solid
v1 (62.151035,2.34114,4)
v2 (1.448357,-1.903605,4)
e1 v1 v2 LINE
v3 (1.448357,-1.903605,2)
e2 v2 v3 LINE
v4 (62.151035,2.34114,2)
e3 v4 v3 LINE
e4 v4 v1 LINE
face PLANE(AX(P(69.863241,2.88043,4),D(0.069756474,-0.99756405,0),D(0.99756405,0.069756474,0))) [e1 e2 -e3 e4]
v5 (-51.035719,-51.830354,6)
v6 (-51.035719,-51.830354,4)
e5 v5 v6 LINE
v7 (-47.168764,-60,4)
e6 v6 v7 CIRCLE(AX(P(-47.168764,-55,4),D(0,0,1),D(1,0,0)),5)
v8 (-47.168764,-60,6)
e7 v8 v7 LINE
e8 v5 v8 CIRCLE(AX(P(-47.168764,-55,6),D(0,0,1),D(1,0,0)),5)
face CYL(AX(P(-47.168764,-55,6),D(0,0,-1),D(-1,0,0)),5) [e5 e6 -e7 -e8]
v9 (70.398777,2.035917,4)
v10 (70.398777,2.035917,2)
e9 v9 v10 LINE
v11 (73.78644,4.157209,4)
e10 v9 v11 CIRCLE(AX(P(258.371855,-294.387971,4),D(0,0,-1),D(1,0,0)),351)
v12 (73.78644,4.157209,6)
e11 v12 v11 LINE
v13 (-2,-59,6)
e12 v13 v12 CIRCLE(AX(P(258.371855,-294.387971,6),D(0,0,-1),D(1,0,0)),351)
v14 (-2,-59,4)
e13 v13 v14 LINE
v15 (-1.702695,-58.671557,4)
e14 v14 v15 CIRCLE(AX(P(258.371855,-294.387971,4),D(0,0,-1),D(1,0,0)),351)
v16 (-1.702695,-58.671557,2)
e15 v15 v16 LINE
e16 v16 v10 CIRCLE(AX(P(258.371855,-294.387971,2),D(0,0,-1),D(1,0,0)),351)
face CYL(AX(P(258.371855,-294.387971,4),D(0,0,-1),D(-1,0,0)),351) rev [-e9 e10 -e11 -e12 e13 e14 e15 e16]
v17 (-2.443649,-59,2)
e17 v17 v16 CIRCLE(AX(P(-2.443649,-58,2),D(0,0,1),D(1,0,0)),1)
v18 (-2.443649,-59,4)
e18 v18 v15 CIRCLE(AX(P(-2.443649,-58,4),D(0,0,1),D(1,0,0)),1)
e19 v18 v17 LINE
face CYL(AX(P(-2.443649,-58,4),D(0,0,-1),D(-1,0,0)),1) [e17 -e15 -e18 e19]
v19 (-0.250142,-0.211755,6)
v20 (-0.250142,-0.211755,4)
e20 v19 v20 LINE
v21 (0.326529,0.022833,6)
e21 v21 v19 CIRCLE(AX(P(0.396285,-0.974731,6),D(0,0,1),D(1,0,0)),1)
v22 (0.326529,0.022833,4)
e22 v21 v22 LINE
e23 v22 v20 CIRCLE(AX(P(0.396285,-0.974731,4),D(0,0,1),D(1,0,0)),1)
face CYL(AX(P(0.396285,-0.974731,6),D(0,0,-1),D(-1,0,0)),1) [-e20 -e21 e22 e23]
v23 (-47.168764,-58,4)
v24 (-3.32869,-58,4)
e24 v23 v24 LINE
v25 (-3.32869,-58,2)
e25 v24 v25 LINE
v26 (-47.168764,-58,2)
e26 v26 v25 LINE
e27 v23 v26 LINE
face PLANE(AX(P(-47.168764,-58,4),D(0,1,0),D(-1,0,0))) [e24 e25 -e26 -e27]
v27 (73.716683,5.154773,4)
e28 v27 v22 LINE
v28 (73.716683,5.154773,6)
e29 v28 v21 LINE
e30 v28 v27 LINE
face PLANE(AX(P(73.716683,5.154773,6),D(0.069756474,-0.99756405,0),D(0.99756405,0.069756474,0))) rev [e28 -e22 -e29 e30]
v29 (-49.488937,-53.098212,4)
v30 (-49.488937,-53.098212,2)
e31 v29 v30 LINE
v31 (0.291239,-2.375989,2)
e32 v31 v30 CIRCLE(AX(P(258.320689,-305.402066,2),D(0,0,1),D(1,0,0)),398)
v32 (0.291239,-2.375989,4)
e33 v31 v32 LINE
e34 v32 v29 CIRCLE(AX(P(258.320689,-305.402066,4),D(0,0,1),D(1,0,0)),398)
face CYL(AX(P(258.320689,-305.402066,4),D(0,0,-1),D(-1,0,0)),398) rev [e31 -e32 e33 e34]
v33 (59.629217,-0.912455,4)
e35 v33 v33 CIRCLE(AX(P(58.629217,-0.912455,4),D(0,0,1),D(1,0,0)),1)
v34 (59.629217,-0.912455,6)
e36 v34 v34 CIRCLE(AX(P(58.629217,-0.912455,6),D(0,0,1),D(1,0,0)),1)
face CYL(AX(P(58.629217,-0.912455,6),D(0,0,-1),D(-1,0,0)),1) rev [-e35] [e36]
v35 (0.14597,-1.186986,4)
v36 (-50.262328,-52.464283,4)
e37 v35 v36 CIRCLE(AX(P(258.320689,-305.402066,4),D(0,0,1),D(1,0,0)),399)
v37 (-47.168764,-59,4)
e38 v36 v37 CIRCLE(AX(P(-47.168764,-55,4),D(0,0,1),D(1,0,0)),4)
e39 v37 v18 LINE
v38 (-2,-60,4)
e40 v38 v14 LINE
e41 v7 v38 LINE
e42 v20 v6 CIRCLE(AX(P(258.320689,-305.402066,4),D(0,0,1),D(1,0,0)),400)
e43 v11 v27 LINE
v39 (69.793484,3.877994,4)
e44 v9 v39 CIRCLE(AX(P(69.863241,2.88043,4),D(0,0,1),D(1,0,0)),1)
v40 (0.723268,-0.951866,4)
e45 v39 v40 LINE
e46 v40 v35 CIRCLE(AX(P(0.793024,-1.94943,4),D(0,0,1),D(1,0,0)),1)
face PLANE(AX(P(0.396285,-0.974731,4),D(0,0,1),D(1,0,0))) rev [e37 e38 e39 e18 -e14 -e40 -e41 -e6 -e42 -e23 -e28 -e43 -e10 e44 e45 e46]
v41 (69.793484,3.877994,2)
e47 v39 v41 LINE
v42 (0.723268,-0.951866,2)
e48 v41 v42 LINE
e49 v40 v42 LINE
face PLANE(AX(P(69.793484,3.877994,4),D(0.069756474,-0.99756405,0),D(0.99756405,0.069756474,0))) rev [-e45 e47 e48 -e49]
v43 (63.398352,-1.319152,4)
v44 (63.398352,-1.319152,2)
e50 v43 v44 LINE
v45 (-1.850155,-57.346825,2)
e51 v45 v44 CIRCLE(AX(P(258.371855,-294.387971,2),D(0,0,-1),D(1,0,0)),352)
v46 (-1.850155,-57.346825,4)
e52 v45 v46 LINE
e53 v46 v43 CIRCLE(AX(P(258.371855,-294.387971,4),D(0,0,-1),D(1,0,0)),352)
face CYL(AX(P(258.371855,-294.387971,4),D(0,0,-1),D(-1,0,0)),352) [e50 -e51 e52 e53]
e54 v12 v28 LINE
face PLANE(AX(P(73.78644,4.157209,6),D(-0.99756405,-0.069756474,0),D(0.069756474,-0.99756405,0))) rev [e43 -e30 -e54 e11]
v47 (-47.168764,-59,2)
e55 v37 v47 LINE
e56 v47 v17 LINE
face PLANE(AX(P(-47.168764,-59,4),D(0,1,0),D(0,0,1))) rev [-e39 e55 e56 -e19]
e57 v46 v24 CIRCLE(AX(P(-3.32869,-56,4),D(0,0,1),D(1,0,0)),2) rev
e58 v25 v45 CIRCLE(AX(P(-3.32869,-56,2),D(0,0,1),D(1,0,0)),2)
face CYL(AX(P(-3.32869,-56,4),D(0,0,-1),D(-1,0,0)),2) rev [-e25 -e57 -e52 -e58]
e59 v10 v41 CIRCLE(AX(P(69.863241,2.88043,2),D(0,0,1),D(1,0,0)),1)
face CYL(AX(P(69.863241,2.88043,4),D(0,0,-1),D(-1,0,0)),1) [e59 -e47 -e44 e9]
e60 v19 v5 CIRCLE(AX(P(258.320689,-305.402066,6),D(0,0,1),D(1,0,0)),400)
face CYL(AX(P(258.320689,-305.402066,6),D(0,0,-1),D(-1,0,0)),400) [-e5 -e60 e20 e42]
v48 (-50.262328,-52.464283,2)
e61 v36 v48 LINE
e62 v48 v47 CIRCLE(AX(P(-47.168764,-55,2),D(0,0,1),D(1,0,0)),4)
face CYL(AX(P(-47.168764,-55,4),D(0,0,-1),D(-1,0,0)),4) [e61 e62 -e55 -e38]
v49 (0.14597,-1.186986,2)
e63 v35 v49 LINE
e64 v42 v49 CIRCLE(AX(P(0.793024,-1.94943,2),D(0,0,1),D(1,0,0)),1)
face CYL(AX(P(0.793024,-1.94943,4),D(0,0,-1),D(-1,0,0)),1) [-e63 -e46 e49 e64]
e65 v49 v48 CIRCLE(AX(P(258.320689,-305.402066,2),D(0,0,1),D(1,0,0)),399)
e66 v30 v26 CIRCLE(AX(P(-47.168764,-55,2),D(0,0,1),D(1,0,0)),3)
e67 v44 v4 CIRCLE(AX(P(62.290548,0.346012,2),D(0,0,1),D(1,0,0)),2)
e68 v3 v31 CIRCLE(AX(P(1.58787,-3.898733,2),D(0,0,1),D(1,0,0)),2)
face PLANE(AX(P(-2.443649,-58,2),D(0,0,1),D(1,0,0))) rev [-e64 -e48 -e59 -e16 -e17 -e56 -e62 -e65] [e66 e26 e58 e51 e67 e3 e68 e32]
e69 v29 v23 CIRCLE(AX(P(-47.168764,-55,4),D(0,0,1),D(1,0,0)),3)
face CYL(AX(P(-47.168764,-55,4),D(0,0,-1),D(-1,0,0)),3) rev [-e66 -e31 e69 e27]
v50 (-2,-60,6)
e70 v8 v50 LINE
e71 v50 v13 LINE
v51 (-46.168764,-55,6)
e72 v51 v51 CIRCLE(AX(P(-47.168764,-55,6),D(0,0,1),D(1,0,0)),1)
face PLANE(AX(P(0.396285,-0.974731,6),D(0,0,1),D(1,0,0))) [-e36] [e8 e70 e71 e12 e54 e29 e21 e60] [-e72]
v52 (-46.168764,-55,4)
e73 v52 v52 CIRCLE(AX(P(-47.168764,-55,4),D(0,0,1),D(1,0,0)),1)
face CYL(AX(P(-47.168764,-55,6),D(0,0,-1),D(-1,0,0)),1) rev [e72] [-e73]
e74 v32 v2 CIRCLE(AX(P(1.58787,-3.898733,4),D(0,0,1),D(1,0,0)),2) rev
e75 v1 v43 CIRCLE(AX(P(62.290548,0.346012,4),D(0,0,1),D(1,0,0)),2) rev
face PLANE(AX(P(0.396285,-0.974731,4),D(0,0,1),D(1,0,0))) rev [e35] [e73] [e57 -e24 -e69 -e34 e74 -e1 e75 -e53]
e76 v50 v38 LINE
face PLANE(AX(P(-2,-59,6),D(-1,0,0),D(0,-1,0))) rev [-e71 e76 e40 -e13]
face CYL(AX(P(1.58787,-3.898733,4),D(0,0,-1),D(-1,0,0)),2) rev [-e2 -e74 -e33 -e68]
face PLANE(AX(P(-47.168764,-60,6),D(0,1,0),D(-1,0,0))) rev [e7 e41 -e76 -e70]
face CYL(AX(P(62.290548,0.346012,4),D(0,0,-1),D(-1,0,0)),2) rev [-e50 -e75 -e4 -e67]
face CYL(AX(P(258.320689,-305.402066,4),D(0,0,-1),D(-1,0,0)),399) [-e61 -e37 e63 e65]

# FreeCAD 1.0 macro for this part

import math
import FreeCAD as App
import Part
import Sketcher
Q = App.Units.Quantity


def edges_at(feature, points):
    """Names of the edges that pass closest to the given points."""
    edges = feature.Shape.Edges
    near = lambda p: min(range(len(edges)), key=lambda i: edges[i].distToShape(Part.Vertex(*p))[0])
    return sorted({f"Edge{near(p) + 1}" for p in points})

doc = App.newDocument("Part")
params = doc.addObject("Spreadsheet::Sheet", "Params")
for row, (alias, value) in enumerate([
    ("sketch1_radius", "1 mm"),
    ("sketch1_radius2", "351 mm"),
    ("sketch1_radius3", "399 mm"),
    ("sketch1_radius4", "4 mm"),
    ("pad1_length", "2 mm"),
    ("sketch2_diameter", "2 mm"),
    ("sketch2_radius", "400 mm"),
    ("sketch2_radius2", "5 mm"),
    ("sketch2_radius3", "351 mm"),
    ("sketch2_height", "1 mm"),
    ("pad2_length", "2 mm"),
    ("fillet_radius", "2 mm"),
], start=1):
    params.set(f"A{row}", alias)
    params.set(f"B{row}", "=" + value)
    params.setAlias(f"B{row}", alias)

body = doc.addObject("PartDesign::Body", "Body")

# Sketch on XY plane
sketch1 = doc.addObject("Sketcher::SketchObject", "Sketch")
body.addObject(sketch1)
sketch1.AttachmentSupport = (doc.XY_Plane, [""])
sketch1.MapMode = "FlatFace"
sketch1.AttachmentOffset = App.Placement(App.Vector(0, 0, 2), App.Rotation())
sketch1.addGeometry([
    Part.LineSegment(App.Vector(-47.168764, -59, 0), App.Vector(-2.443649, -59, 0)),  # 0
    Part.ArcOfCircle(Part.Circle(App.Vector(-2.443649, -58, 0), App.Vector(0, 0, 1), 1), math.radians(-90), math.radians(-42.187328)),  # 1
    Part.ArcOfCircle(Part.Circle(App.Vector(258.371855, -294.387971, 0), App.Vector(0, 0, 1), 351), math.radians(122.380258), math.radians(137.812672)),  # 2
    Part.ArcOfCircle(Part.Circle(App.Vector(69.863241, 2.88043, 0), App.Vector(0, 0, 1), 1), math.radians(-57.619742), math.radians(94)),  # 3
    Part.LineSegment(App.Vector(69.793484, 3.877994, 0), App.Vector(0.723268, -0.951866, 0)),  # 4
    Part.ArcOfCircle(Part.Circle(App.Vector(0.793024, -1.94943, 0), App.Vector(0, 0, 1), 1), math.radians(94), math.radians(130.319885)),  # 5
    Part.ArcOfCircle(Part.Circle(App.Vector(258.320689, -305.402066, 0), App.Vector(0, 0, 1), 399), math.radians(130.319885), math.radians(140.659384)),  # 6
    Part.ArcOfCircle(Part.Circle(App.Vector(-47.168764, -55, 0), App.Vector(0, 0, 1), 4), math.radians(140.659384), math.radians(270)),  # 7
    Part.LineSegment(App.Vector(-2.443649, -58, 0), App.Vector(-47.168764, -58, 0)),  # 8
    Part.ArcOfCircle(Part.Circle(App.Vector(-47.168764, -55, 0), App.Vector(0, 0, 1), 3), math.radians(140.659384), math.radians(270)),  # 9
    Part.ArcOfCircle(Part.Circle(App.Vector(258.320689, -305.402066, 0), App.Vector(0, 0, 1), 398), math.radians(130.319885), math.radians(140.659384)),  # 10
    Part.LineSegment(App.Vector(0.793024, -1.94943, 0), App.Vector(69.863241, 2.88043, 0)),  # 11
    Part.ArcOfCircle(Part.Circle(App.Vector(258.371855, -294.387971, 0), App.Vector(0, 0, 1), 352), math.radians(122.380258), math.radians(137.812672)),  # 12
], False)
sketch1.addConstraint([
    Sketcher.Constraint("Tangent", 0, 2, 1, 1),
    Sketcher.Constraint("Tangent", 1, 2, 2, 2),
    Sketcher.Constraint("Tangent", 2, 1, 3, 1),
    Sketcher.Constraint("Tangent", 3, 2, 4, 1),
    Sketcher.Constraint("Tangent", 4, 2, 5, 1),
    Sketcher.Constraint("Tangent", 5, 2, 6, 1),
    Sketcher.Constraint("Tangent", 6, 2, 7, 1),
    Sketcher.Constraint("Tangent", 7, 2, 0, 1),
    Sketcher.Constraint("Tangent", 8, 2, 9, 2),
    Sketcher.Constraint("Tangent", 9, 1, 10, 2),
    Sketcher.Constraint("Coincident", 10, 1, 11, 1),
    Sketcher.Constraint("Coincident", 11, 2, 12, 1),
    Sketcher.Constraint("Coincident", 12, 2, 8, 1),
    Sketcher.Constraint("Horizontal", 0),
    Sketcher.Constraint("Horizontal", 8),
    Sketcher.Constraint("Coincident", 9, 3, 7, 3),
    Sketcher.Constraint("Coincident", 10, 3, 6, 3),
    Sketcher.Constraint("Coincident", 12, 3, 2, 3),
    Sketcher.Constraint("Coincident", 10, 1, 5, 3),
    Sketcher.Constraint("Coincident", 11, 2, 3, 3),
    Sketcher.Constraint("Coincident", 12, 2, 1, 3),
    Sketcher.Constraint("Radius", 1, 1.0),
    Sketcher.Constraint("Radius", 2, 351.0),
    Sketcher.Constraint("Radius", 6, 399.0),
    Sketcher.Constraint("Radius", 7, 4.0),
    Sketcher.Constraint("Angle", 4, Q("-176 deg")),
    Sketcher.Constraint("DistanceY", 1, 3, -1, 1, 58.0),
    Sketcher.Constraint("DistanceY", 2, 3, 3, 3, 297.268401),
    Sketcher.Constraint("Distance", 4, 69.238879),
    Sketcher.Constraint("DistanceX", 0, 1, 0, 2, 44.725115),
    Sketcher.Constraint("DistanceX", 1, 3, -1, 1, 2.443649),
    Sketcher.Constraint("DistanceY", 2, 3, -1, 1, 294.387971),
])
sketch1.setExpression("Constraints[21]", "Params.sketch1_radius")
sketch1.setExpression("Constraints[22]", "Params.sketch1_radius2")
sketch1.setExpression("Constraints[23]", "Params.sketch1_radius3")
sketch1.setExpression("Constraints[24]", "Params.sketch1_radius4")
pad1 = doc.addObject("PartDesign::Pad", "Pad")
body.addObject(pad1)
pad1.Profile = sketch1
pad1.setExpression("Length", "Params.pad1_length")

# Sketch on XY plane
sketch2 = doc.addObject("Sketcher::SketchObject", "Sketch001")
body.addObject(sketch2)
sketch2.AttachmentSupport = (doc.XY_Plane, [""])
sketch2.MapMode = "FlatFace"
sketch2.AttachmentOffset = App.Placement(App.Vector(0, 0, 4), App.Rotation())
sketch2.addGeometry([
    Part.LineSegment(App.Vector(73.716683, 5.154773, 0), App.Vector(0.326529, 0.022833, 0)),  # 0
    Part.ArcOfCircle(Part.Circle(App.Vector(0.396285, -0.974731, 0), App.Vector(0, 0, 1), 1), math.radians(94), math.radians(130.272757)),  # 1
    Part.ArcOfCircle(Part.Circle(App.Vector(258.320689, -305.402066, 0), App.Vector(0, 0, 1), 400), math.radians(130.272757), math.radians(140.659384)),  # 2
    Part.ArcOfCircle(Part.Circle(App.Vector(-47.168764, -55, 0), App.Vector(0, 0, 1), 5), math.radians(140.659384), math.radians(270)),  # 3
    Part.LineSegment(App.Vector(-47.168764, -60, 0), App.Vector(-2, -60, 0)),  # 4
    Part.LineSegment(App.Vector(-2, -60, 0), App.Vector(-2, -59, 0)),  # 5
    Part.ArcOfCircle(Part.Circle(App.Vector(258.371855, -294.387971, 0), App.Vector(0, 0, 1), 351), math.radians(121.727798), math.radians(137.884988)),  # 6
    Part.LineSegment(App.Vector(73.78644, 4.157209, 0), App.Vector(73.716683, 5.154773, 0)),  # 7
    Part.Circle(App.Vector(-47.168764, -55, 0), App.Vector(0, 0, 1), 1),  # 8
    Part.Circle(App.Vector(58.629217, -0.912455, 0), App.Vector(0, 0, 1), 1),  # 9
], False)
sketch2.addConstraint([
    Sketcher.Constraint("Tangent", 0, 2, 1, 1),
    Sketcher.Constraint("Tangent", 1, 2, 2, 1),
    Sketcher.Constraint("Tangent", 2, 2, 3, 1),
    Sketcher.Constraint("Tangent", 3, 2, 4, 1),
    Sketcher.Constraint("Coincident", 4, 2, 5, 1),
    Sketcher.Constraint("Coincident", 5, 2, 6, 2),
    Sketcher.Constraint("Coincident", 6, 1, 7, 1),
    Sketcher.Constraint("Coincident", 7, 2, 0, 1),
    Sketcher.Constraint("Horizontal", 4),
    Sketcher.Constraint("Vertical", 5),
    Sketcher.Constraint("Coincident", 8, 3, 3, 3),
    Sketcher.Constraint("Equal", 1, 8),
    Sketcher.Constraint("Equal", 8, 9),
    Sketcher.Constraint("Perpendicular", 0, 7),
    Sketcher.Constraint("Diameter", 8, 2.0),
    Sketcher.Constraint("Radius", 2, 400.0),
    Sketcher.Constraint("Radius", 3, 5.0),
    Sketcher.Constraint("Radius", 6, 351.0),
    Sketcher.Constraint("DistanceY", 5, 1, 5, 2, 1.0),
    Sketcher.Constraint("Angle", 0, Q("-176 deg")),
    Sketcher.Constraint("Distance", 7, 1.0),
    Sketcher.Constraint("DistanceY", 3, 3, -1, 1, 55.0),
    Sketcher.Constraint("DistanceX", 4, 2, -1, 1, 2.0),
    Sketcher.Constraint("DistanceY", 9, 3, 1, 2, 0.7007),
    Sketcher.Constraint("DistanceX", 4, 1, 4, 2, 45.168764),
    Sketcher.Constraint("DistanceY", 1, 3, -1, 1, 0.974731),
    Sketcher.Constraint("DistanceX", -1, 1, 2, 3, 258.320689),
    Sketcher.Constraint("DistanceY", 6, 3, -1, 1, 294.387971),
    Sketcher.Constraint("DistanceX", 1, 3, 9, 3, 58.232932),
])
sketch2.setExpression("Constraints[14]", "Params.sketch2_diameter")
sketch2.setExpression("Constraints[15]", "Params.sketch2_radius")
sketch2.setExpression("Constraints[16]", "Params.sketch2_radius2")
sketch2.setExpression("Constraints[17]", "Params.sketch2_radius3")
sketch2.setExpression("Constraints[18]", "Params.sketch2_height")
pad2 = doc.addObject("PartDesign::Pad", "Pad001")
body.addObject(pad2)
pad2.Profile = sketch2
pad2.setExpression("Length", "Params.pad2_length")
doc.recompute()

fillet = doc.addObject("PartDesign::Fillet", "Fillet")
body.addObject(fillet)
fillet.Base = (pad2, edges_at(pad2, [(69.863, 2.88, 3), (0.793, -1.949, 3), (-2.444, -58, 3)]))
fillet.setExpression("Radius", "Params.fillet_radius")

doc.recompute()
